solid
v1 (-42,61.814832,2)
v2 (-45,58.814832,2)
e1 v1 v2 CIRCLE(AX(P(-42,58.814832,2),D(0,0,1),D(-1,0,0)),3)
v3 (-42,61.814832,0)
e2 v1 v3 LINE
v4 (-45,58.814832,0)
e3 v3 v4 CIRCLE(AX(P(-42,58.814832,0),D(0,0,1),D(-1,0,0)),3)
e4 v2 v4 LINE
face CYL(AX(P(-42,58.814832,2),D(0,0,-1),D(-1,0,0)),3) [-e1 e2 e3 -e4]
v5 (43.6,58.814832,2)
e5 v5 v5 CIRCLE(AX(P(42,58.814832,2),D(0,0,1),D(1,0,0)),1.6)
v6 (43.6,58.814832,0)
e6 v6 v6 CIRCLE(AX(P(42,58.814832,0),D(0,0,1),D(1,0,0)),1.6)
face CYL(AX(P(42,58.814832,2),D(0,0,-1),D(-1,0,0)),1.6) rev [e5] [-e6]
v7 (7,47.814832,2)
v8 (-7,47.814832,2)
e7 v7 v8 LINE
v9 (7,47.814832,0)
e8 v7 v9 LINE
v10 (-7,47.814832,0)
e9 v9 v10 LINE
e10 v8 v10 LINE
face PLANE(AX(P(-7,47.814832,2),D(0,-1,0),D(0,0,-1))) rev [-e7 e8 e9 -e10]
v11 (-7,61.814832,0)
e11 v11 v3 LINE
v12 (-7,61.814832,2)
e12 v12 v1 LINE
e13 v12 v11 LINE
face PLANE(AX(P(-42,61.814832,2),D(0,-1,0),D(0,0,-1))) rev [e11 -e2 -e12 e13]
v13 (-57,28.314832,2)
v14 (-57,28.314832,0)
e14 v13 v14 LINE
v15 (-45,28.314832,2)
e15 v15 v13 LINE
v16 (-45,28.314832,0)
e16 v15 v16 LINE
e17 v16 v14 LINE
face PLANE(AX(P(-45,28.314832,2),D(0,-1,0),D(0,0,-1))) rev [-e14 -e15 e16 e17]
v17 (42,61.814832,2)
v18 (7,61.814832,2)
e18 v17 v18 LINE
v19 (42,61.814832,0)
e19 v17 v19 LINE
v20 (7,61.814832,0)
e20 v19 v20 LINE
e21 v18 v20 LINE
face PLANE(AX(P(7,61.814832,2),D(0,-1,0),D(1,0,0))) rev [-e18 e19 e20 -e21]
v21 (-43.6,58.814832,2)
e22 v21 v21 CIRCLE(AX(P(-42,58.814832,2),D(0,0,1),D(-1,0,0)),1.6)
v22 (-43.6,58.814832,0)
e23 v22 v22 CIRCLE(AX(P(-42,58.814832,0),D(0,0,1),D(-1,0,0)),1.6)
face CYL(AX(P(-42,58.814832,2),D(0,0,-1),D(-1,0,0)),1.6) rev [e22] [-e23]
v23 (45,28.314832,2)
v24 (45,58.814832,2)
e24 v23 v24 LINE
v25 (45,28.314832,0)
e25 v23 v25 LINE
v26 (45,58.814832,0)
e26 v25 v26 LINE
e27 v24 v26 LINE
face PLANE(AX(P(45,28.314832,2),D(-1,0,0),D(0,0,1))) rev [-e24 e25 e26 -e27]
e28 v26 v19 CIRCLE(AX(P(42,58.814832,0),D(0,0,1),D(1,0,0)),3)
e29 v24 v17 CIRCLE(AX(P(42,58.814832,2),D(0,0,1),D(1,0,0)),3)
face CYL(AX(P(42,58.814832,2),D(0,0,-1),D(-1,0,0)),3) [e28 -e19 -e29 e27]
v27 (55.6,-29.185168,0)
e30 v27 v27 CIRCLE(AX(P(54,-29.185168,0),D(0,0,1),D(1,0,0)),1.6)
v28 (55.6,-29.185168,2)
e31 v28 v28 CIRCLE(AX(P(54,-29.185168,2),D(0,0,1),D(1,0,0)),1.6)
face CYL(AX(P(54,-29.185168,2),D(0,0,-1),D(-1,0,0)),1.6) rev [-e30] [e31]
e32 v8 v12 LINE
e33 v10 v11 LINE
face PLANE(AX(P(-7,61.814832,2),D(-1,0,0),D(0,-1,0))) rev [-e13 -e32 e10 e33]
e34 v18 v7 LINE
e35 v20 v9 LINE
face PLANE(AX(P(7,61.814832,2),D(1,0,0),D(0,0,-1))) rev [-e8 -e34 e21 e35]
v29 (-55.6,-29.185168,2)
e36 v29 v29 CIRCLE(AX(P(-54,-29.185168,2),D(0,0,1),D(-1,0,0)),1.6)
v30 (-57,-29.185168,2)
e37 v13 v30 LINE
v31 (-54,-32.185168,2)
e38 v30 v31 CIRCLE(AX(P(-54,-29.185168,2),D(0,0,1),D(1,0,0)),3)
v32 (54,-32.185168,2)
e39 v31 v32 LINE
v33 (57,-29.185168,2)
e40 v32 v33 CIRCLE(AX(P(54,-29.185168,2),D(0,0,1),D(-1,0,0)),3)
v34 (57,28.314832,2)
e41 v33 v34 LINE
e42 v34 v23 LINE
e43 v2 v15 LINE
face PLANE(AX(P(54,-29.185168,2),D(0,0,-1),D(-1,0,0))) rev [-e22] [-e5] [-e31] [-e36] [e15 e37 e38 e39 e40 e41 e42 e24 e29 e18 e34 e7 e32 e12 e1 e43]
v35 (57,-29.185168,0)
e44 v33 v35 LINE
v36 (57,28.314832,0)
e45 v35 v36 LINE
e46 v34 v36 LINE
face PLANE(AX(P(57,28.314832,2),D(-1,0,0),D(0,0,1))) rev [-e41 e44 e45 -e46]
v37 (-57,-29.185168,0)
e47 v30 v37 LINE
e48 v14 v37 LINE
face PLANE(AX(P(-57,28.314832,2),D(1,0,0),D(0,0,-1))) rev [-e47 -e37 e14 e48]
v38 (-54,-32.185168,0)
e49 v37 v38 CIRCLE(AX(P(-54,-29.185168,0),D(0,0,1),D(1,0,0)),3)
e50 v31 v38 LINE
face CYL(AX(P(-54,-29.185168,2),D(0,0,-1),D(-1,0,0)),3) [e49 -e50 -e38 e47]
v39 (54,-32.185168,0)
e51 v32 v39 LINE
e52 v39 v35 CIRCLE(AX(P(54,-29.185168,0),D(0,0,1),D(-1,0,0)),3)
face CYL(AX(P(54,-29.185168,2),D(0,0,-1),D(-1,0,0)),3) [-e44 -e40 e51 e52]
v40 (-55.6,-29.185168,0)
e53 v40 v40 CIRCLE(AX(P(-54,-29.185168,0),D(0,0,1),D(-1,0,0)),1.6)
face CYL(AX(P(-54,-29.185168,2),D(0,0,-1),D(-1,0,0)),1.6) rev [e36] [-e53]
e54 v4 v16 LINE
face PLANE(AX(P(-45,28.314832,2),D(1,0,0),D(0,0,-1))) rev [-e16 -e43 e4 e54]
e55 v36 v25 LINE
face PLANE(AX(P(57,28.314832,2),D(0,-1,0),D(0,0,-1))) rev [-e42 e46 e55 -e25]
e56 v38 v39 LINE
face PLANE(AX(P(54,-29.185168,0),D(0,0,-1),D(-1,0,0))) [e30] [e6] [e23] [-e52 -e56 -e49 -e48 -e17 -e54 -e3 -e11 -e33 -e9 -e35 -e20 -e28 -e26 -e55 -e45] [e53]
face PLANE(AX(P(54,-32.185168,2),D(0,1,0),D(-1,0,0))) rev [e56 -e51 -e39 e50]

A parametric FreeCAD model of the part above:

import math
import FreeCAD as App
import Part
import Sketcher
from FreeCAD import Vector
Q = App.Units.Quantity

doc = App.newDocument("Part")
body = doc.addObject("PartDesign::Body", "Body")

sketch1 = body.newObject("Sketcher::SketchObject", "Sketch")
sketch1.AttachmentSupport = (doc.getObject("XY_Plane"), [""])
sketch1.MapMode = "FlatFace"
sketch1.addGeometry(Part.LineSegment(Vector(-45, 28.314832, 0), Vector(-57, 28.314832, 0)), False)
sketch1.addGeometry(Part.LineSegment(Vector(-57, 28.314832, 0), Vector(-57, -29.185168, 0)), False)
sketch1.addGeometry(Part.ArcOfCircle(Part.Circle(Vector(-54, -29.185168, 0), Vector(0, 0, 1), 3), math.radians(180), math.radians(270)), False)
sketch1.addGeometry(Part.LineSegment(Vector(-54, -32.185168, 0), Vector(54, -32.185168, 0)), False)
sketch1.addGeometry(Part.ArcOfCircle(Part.Circle(Vector(54, -29.185168, 0), Vector(0, 0, 1), 3), math.radians(-90), math.radians(0)), False)
sketch1.addGeometry(Part.LineSegment(Vector(57, -29.185168, 0), Vector(57, 28.314832, 0)), False)
sketch1.addGeometry(Part.LineSegment(Vector(57, 28.314832, 0), Vector(45, 28.314832, 0)), False)
sketch1.addGeometry(Part.LineSegment(Vector(45, 28.314832, 0), Vector(45, 58.814832, 0)), False)
sketch1.addGeometry(Part.ArcOfCircle(Part.Circle(Vector(42, 58.814832, 0), Vector(0, 0, 1), 3), math.radians(0), math.radians(90)), False)
sketch1.addGeometry(Part.LineSegment(Vector(42, 61.814832, 0), Vector(7, 61.814832, 0)), False)
sketch1.addGeometry(Part.LineSegment(Vector(7, 61.814832, 0), Vector(7, 47.814832, 0)), False)
sketch1.addGeometry(Part.LineSegment(Vector(7, 47.814832, 0), Vector(-7, 47.814832, 0)), False)
sketch1.addGeometry(Part.LineSegment(Vector(-7, 47.814832, 0), Vector(-7, 61.814832, 0)), False)
sketch1.addGeometry(Part.LineSegment(Vector(-7, 61.814832, 0), Vector(-42, 61.814832, 0)), False)
sketch1.addGeometry(Part.ArcOfCircle(Part.Circle(Vector(-42, 58.814832, 0), Vector(0, 0, 1), 3), math.radians(90), math.radians(180)), False)
sketch1.addGeometry(Part.LineSegment(Vector(-45, 58.814832, 0), Vector(-45, 28.314832, 0)), False)
sketch1.addGeometry(Part.Circle(Vector(-54, -29.185168, 0), Vector(0, 0, 1), 1.6), False)
sketch1.addGeometry(Part.Circle(Vector(54, -29.185168, 0), Vector(0, 0, 1), 1.6), False)
sketch1.addGeometry(Part.Circle(Vector(-42, 58.814832, 0), Vector(0, 0, 1), 1.6), False)
sketch1.addGeometry(Part.Circle(Vector(42, 58.814832, 0), Vector(0, 0, 1), 1.6), False)
sketch1.addConstraint(Sketcher.Constraint("Coincident", 0, 2, 1, 1))
sketch1.addConstraint(Sketcher.Constraint("Tangent", 1, 2, 2, 1))
sketch1.addConstraint(Sketcher.Constraint("Tangent", 2, 2, 3, 1))
sketch1.addConstraint(Sketcher.Constraint("Tangent", 3, 2, 4, 1))
sketch1.addConstraint(Sketcher.Constraint("Tangent", 4, 2, 5, 1))
sketch1.addConstraint(Sketcher.Constraint("Coincident", 5, 2, 6, 1))
sketch1.addConstraint(Sketcher.Constraint("Coincident", 6, 2, 7, 1))
sketch1.addConstraint(Sketcher.Constraint("Tangent", 7, 2, 8, 1))
sketch1.addConstraint(Sketcher.Constraint("Tangent", 8, 2, 9, 1))
sketch1.addConstraint(Sketcher.Constraint("Coincident", 9, 2, 10, 1))
sketch1.addConstraint(Sketcher.Constraint("Coincident", 10, 2, 11, 1))
sketch1.addConstraint(Sketcher.Constraint("Coincident", 11, 2, 12, 1))
sketch1.addConstraint(Sketcher.Constraint("Coincident", 12, 2, 13, 1))
sketch1.addConstraint(Sketcher.Constraint("Tangent", 13, 2, 14, 1))
sketch1.addConstraint(Sketcher.Constraint("Tangent", 14, 2, 15, 1))
sketch1.addConstraint(Sketcher.Constraint("Coincident", 15, 2, 0, 1))
sketch1.addConstraint(Sketcher.Constraint("Horizontal", 0))
sketch1.addConstraint(Sketcher.Constraint("Vertical", 1))
sketch1.addConstraint(Sketcher.Constraint("Horizontal", 3))
sketch1.addConstraint(Sketcher.Constraint("Vertical", 5))
sketch1.addConstraint(Sketcher.Constraint("Horizontal", 6))
sketch1.addConstraint(Sketcher.Constraint("Vertical", 7))
sketch1.addConstraint(Sketcher.Constraint("Horizontal", 9))
sketch1.addConstraint(Sketcher.Constraint("Vertical", 10))
sketch1.addConstraint(Sketcher.Constraint("Horizontal", 11))
sketch1.addConstraint(Sketcher.Constraint("Vertical", 12))
sketch1.addConstraint(Sketcher.Constraint("Horizontal", 13))
sketch1.addConstraint(Sketcher.Constraint("Vertical", 15))
sketch1.addConstraint(Sketcher.Constraint("Coincident", 16, 3, 2, 3))
sketch1.addConstraint(Sketcher.Constraint("Coincident", 17, 3, 4, 3))
sketch1.addConstraint(Sketcher.Constraint("Coincident", 18, 3, 14, 3))
sketch1.addConstraint(Sketcher.Constraint("Coincident", 19, 3, 8, 3))
sketch1.addConstraint(Sketcher.Constraint("Equal", 2, 4))
sketch1.addConstraint(Sketcher.Constraint("Equal", 4, 8))
sketch1.addConstraint(Sketcher.Constraint("Equal", 8, 14))
sketch1.addConstraint(Sketcher.Constraint("Equal", 16, 17))
sketch1.addConstraint(Sketcher.Constraint("Equal", 17, 18))
sketch1.addConstraint(Sketcher.Constraint("Equal", 18, 19))
sketch1.addConstraint(Sketcher.Constraint("Symmetric", 8, 3, 14, 3, -2))
sketch1.addConstraint(Sketcher.Constraint("Symmetric", 0, 2, 5, 2, -2))
sketch1.addConstraint(Sketcher.Constraint("Equal", 9, 13))
sketch1.addConstraint(Sketcher.Constraint("Equal", 11, 10))
sketch1.addConstraint(Sketcher.Constraint("Radius", 2, Q("3 mm")))
sketch1.addConstraint(Sketcher.Constraint("Diameter", 16, Q("3.2 mm")))
sketch1.addConstraint(Sketcher.Constraint("DistanceX", 0, 2, 0, 1, Q("12 mm")))
sketch1.addConstraint(Sketcher.Constraint("DistanceX", 3, 1, 3, 2, Q("108 mm")))
sketch1.addConstraint(Sketcher.Constraint("DistanceX", 9, 2, 9, 1, Q("35 mm")))
sketch1.addConstraint(Sketcher.Constraint("DistanceY", 1, 2, 1, 1, Q("57.5 mm")))
sketch1.addConstraint(Sketcher.Constraint("DistanceY", 7, 1, 7, 2, Q("30.5 mm")))
sketch1.addConstraint(Sketcher.Constraint("DistanceY", 2, 3, -1, 1, Q("29.185168 mm")))
pad1 = body.newObject("PartDesign::Pad", "Pad")
pad1.Profile = sketch1
pad1.Length = 2

doc.recompute()
